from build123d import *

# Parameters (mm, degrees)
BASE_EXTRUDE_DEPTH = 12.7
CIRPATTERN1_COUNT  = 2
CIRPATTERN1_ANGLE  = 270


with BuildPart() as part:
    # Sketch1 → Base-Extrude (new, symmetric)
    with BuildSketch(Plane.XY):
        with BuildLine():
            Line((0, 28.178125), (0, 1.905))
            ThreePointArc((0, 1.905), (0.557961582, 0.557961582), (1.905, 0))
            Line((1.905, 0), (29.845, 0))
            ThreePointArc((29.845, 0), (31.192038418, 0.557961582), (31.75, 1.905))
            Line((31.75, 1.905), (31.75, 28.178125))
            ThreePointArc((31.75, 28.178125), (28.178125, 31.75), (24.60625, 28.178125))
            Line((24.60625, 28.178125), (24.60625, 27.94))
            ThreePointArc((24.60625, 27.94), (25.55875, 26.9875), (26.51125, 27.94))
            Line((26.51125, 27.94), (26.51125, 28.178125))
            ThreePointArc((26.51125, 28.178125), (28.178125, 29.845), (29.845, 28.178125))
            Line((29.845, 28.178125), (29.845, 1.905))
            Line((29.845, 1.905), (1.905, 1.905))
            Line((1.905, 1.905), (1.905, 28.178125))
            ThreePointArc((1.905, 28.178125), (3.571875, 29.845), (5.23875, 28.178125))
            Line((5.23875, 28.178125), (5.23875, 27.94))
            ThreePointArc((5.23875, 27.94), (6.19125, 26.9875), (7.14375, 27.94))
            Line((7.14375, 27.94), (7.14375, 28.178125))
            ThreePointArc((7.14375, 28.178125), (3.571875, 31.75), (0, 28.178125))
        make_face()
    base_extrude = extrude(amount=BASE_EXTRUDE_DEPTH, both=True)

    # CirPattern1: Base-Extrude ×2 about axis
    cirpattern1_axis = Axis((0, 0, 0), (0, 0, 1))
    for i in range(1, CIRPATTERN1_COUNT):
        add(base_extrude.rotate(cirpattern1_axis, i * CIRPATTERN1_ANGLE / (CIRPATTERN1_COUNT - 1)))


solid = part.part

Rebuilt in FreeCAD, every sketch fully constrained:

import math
import FreeCAD as App
import Part
import Sketcher

V = App.Vector
Q = App.Units.Quantity

doc = App.newDocument("Part")
body = doc.addObject("PartDesign::Body", "Body")

sketch1 = body.newObject("Sketcher::SketchObject", "Sketch")
sketch1.AttachmentSupport = (doc.getObject("XY_Plane"), [""])
sketch1.MapMode = "FlatFace"
sketch1.addGeometry([
    Part.LineSegment(V(0, 28.18, 0), V(0, 1.91, 0)),
    Part.ArcOfCircle(Part.Circle(V(1.91, 1.91, 0), V(0, 0, 1), 1.91), math.radians(-180), math.radians(-90)),
    Part.LineSegment(V(1.91, 0, 0), V(29.84, 0, 0)),
    Part.ArcOfCircle(Part.Circle(V(29.84, 1.91, 0), V(0, 0, 1), 1.91), math.radians(-90), math.radians(0)),
    Part.LineSegment(V(31.75, 1.91, 0), V(31.75, 28.18, 0)),
    Part.ArcOfCircle(Part.Circle(V(28.18, 28.18, 0), V(0, 0, 1), 3.57), math.radians(0), math.radians(180)),
    Part.LineSegment(V(24.61, 28.18, 0), V(24.61, 27.94, 0)),
    Part.ArcOfCircle(Part.Circle(V(25.56, 27.94, 0), V(0, 0, 1), 0.95), math.radians(180), math.radians(360)),
    Part.LineSegment(V(26.51, 27.94, 0), V(26.51, 28.18, 0)),
    Part.ArcOfCircle(Part.Circle(V(28.18, 28.18, 0), V(0, 0, 1), 1.67), math.radians(0), math.radians(180)),
    Part.LineSegment(V(29.84, 28.18, 0), V(29.84, 1.91, 0)),
    Part.LineSegment(V(29.84, 1.91, 0), V(1.91, 1.91, 0)),
    Part.LineSegment(V(1.91, 1.91, 0), V(1.91, 28.18, 0)),
    Part.ArcOfCircle(Part.Circle(V(3.57, 28.18, 0), V(0, 0, 1), 1.67), math.radians(0), math.radians(180)),
    Part.LineSegment(V(5.24, 28.18, 0), V(5.24, 27.94, 0)),
    Part.ArcOfCircle(Part.Circle(V(6.19, 27.94, 0), V(0, 0, 1), 0.95), math.radians(180), math.radians(360)),
    Part.LineSegment(V(7.14, 27.94, 0), V(7.14, 28.18, 0)),
    Part.ArcOfCircle(Part.Circle(V(3.57, 28.18, 0), V(0, 0, 1), 3.57), math.radians(0), math.radians(180)),
], False)
sketch1.addConstraint([
    Sketcher.Constraint("Tangent", 0, 2, 1, 1),
    Sketcher.Constraint("Tangent", 1, 2, 2, 1),
    Sketcher.Constraint("Tangent", 2, 2, 3, 1),
    Sketcher.Constraint("Tangent", 3, 2, 4, 1),
    Sketcher.Constraint("Tangent", 4, 2, 5, 1),
    Sketcher.Constraint("Tangent", 5, 2, 6, 1),
    Sketcher.Constraint("Tangent", 6, 2, 7, 1),
    Sketcher.Constraint("Tangent", 7, 2, 8, 1),
    Sketcher.Constraint("Tangent", 8, 2, 9, 2),
    Sketcher.Constraint("Tangent", 9, 1, 10, 1),
    Sketcher.Constraint("Coincident", 10, 2, 11, 1),
    Sketcher.Constraint("Coincident", 11, 2, 12, 1),
    Sketcher.Constraint("Tangent", 12, 2, 13, 2),
    Sketcher.Constraint("Tangent", 13, 1, 14, 1),
    Sketcher.Constraint("Tangent", 14, 2, 15, 1),
    Sketcher.Constraint("Tangent", 15, 2, 16, 1),
    Sketcher.Constraint("Tangent", 16, 2, 17, 1),
    Sketcher.Constraint("Tangent", 17, 2, 0, 1),
    Sketcher.Constraint("Vertical", 0),
    Sketcher.Constraint("Horizontal", 2),
    Sketcher.Constraint("Vertical", 4),
    Sketcher.Constraint("Vertical", 6),
    Sketcher.Constraint("Vertical", 8),
    Sketcher.Constraint("Vertical", 10),
    Sketcher.Constraint("Horizontal", 11),
    Sketcher.Constraint("Vertical", 12),
    Sketcher.Constraint("Vertical", 14),
    Sketcher.Constraint("Vertical", 16),
    Sketcher.Constraint("Coincident", 9, 3, 5, 3),
    Sketcher.Constraint("Coincident", 17, 3, 13, 3),
    Sketcher.Constraint("Coincident", 10, 2, 3, 3),
    Sketcher.Constraint("Coincident", 11, 2, 1, 3),
    Sketcher.Constraint("Equal", 9, 13),
    Sketcher.Constraint("PointOnObject", 0, 2, -2),
    Sketcher.Constraint("PointOnObject", 1, 2, -1),
    Sketcher.Constraint("Horizontal", 9, 3, 13, 3),
    Sketcher.Constraint("Horizontal", 7, 3, 15, 3),
    Sketcher.Constraint("DistanceX", 2, 1, 2, 2, Q("1.1 in")),
    Sketcher.Constraint("Radius", 1, Q("0.075 in")),
    Sketcher.Constraint("Radius", 5, Q("0.140625 in")),
    Sketcher.Constraint("DistanceY", -1, 1, 7, 3, Q("1.1 in")),
    Sketcher.Constraint("DistanceY", -1, 1, 5, 3, Q("1.109375 in")),
])
pad1 = body.newObject("PartDesign::Pad", "Pad")
pad1.Profile = sketch1
pad1.Length = Q("1 in")
pad1.Midplane = True
doc.recompute()

polarpattern = body.newObject("PartDesign::PolarPattern", "PolarPattern")
polarpattern.Originals = [pad1]
polarpattern.Axis = (doc.getObject("Z_Axis"), [""])
polarpattern.Angle = 270
polarpattern.Occurrences = 2
body.Tip = polarpattern

doc.recompute()
